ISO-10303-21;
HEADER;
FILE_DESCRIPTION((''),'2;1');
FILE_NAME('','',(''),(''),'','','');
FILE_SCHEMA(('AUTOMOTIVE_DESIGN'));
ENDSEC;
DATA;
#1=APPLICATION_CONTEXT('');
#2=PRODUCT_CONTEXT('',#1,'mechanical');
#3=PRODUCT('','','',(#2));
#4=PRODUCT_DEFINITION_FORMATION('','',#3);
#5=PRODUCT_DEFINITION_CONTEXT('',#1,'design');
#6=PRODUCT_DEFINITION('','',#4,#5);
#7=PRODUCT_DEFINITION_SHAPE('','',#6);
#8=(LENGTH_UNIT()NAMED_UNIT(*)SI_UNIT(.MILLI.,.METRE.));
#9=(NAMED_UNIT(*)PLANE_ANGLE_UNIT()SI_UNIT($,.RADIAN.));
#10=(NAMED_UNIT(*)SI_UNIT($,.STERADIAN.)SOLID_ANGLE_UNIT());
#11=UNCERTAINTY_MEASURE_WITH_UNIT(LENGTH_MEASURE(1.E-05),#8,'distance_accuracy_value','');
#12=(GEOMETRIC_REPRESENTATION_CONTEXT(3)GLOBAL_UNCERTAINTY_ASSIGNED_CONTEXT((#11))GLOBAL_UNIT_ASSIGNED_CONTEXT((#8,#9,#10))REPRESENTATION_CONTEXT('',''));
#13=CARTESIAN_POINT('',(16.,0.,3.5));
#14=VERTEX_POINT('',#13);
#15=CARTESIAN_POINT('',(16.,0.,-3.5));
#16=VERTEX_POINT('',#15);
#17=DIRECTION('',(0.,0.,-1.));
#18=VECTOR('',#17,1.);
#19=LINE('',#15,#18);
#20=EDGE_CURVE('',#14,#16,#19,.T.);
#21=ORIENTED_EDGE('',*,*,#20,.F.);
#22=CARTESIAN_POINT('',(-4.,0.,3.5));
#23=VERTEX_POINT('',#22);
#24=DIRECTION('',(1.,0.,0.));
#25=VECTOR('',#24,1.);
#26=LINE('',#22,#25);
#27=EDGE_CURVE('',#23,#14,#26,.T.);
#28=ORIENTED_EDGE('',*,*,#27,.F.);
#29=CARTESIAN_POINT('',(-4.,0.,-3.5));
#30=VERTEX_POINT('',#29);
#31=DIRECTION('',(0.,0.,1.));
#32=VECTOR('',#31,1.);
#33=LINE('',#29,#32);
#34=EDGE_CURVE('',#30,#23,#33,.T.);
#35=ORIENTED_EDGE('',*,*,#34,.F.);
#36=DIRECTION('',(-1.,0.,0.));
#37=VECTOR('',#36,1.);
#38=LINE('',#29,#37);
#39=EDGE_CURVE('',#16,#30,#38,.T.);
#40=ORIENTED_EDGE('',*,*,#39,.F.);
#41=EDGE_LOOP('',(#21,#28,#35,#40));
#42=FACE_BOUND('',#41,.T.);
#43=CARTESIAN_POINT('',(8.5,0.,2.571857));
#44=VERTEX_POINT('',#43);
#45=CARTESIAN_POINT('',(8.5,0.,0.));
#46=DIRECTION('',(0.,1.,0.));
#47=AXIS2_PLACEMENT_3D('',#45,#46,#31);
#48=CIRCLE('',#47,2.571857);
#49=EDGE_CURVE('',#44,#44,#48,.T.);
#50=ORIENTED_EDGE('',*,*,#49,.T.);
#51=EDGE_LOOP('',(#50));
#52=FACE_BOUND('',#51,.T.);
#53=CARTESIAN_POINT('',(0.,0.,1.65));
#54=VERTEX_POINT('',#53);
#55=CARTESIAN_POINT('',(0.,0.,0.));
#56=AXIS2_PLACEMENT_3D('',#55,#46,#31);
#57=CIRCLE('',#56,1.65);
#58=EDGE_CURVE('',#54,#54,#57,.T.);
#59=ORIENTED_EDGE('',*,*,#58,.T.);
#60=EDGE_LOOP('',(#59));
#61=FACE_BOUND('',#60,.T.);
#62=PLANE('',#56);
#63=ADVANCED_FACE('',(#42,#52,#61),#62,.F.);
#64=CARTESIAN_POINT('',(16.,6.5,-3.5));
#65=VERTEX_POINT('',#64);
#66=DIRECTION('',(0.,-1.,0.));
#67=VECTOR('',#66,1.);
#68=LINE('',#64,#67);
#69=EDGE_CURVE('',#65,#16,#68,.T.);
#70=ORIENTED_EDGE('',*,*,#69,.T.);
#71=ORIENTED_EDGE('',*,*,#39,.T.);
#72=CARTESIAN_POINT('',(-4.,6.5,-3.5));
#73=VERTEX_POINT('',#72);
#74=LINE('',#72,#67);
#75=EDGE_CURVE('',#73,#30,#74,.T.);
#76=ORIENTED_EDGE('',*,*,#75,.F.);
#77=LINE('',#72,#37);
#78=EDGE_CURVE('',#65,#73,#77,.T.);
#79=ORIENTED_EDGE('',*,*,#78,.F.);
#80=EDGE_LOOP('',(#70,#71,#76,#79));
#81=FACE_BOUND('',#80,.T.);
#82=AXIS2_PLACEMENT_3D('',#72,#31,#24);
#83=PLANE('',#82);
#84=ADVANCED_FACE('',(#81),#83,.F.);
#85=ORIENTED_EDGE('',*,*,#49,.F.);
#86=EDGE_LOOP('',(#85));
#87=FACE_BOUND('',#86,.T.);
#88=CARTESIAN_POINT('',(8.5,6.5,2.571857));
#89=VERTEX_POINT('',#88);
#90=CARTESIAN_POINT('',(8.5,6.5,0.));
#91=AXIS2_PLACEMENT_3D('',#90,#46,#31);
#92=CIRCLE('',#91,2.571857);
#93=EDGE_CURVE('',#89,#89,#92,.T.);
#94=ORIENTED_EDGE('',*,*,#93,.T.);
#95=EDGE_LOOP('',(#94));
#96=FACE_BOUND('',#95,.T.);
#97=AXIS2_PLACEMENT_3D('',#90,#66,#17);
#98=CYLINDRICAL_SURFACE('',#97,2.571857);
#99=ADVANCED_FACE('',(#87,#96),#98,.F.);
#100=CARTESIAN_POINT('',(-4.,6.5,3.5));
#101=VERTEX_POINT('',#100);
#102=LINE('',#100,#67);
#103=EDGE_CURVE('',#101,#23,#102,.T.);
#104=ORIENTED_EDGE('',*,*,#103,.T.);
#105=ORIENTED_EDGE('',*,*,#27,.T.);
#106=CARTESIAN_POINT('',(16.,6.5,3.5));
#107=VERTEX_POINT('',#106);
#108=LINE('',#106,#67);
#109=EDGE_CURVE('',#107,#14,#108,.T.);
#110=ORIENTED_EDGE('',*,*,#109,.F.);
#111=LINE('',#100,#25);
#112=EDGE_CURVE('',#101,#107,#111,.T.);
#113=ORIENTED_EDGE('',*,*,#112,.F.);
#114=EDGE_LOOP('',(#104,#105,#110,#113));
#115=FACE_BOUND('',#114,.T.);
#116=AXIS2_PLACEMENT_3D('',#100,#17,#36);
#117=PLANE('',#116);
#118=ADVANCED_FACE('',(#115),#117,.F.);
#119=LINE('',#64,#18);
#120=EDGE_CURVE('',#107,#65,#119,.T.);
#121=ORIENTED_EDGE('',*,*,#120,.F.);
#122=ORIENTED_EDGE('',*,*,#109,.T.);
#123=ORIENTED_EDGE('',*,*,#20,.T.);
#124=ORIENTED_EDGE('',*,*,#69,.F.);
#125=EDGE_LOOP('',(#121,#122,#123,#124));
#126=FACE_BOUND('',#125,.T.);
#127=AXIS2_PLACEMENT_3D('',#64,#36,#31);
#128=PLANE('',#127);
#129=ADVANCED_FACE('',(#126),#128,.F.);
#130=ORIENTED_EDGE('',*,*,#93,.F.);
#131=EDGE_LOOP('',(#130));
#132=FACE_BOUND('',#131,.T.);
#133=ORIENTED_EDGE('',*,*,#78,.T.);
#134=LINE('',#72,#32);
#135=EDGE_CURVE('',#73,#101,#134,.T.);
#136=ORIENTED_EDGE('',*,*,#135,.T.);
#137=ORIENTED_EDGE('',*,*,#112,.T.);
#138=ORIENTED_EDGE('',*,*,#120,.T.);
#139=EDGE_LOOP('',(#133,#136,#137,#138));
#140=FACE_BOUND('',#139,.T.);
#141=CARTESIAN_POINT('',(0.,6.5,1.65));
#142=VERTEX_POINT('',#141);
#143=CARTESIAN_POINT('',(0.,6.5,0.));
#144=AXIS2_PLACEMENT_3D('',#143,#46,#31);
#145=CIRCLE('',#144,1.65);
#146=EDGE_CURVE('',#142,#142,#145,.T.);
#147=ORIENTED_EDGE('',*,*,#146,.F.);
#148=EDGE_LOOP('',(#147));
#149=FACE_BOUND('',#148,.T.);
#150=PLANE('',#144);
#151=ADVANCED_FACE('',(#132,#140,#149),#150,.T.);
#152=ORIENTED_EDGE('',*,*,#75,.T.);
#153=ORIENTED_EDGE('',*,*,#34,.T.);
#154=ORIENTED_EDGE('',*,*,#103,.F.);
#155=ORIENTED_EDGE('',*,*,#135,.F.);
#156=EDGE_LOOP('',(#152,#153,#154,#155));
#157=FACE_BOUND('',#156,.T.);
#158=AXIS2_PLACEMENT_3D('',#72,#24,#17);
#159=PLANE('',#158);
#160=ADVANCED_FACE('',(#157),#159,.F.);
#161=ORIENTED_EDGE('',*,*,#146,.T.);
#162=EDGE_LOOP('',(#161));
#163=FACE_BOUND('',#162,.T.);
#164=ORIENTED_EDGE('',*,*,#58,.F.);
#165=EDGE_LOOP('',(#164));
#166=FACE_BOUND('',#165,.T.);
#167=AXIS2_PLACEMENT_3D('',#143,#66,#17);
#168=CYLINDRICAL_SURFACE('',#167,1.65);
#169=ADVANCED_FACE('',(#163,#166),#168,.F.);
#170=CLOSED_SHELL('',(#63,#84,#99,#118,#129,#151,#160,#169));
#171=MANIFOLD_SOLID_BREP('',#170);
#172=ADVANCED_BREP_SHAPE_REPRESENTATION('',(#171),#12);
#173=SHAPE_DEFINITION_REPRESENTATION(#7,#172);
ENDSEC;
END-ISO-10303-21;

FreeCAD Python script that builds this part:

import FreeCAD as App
import Part
import Sketcher


def add_polygon(sketch, points):
    """Adds a closed chain of lines whose ends are joined by coincident constraints."""
    first, n = sketch.GeometryCount, len(points)
    for a, b in zip(points, points[1:] + points[:1]):
        sketch.addGeometry(Part.LineSegment(App.Vector(*a, 0), App.Vector(*b, 0)), False)
    for i in range(n):
        sketch.addConstraint(Sketcher.Constraint("Coincident", first + i, 2, first + (i + 1) % n, 1))

doc = App.newDocument("Part")
body = doc.addObject("PartDesign::Body", "Body")

# Sketch on XZ plane
sketch1 = doc.addObject("Sketcher::SketchObject", "Sketch")
body.addObject(sketch1)
sketch1.AttachmentSupport = (doc.XZ_Plane, [""])
sketch1.MapMode = "FlatFace"
add_polygon(sketch1, [(-4, -3.5), (-4, 3.5), (16, 3.5), (16, -3.5)])  # lines 0-3
sketch1.addGeometry(Part.Circle(App.Vector(0, 0, 0), App.Vector(0, 0, 1), 1.65), False)  # 4
sketch1.addGeometry(Part.Circle(App.Vector(8.5, 0, 0), App.Vector(0, 0, 1), 2.571857), False)  # 5
sketch1.addConstraint([
    Sketcher.Constraint("Vertical", 0),
    Sketcher.Constraint("Horizontal", 1),
    Sketcher.Constraint("Vertical", 2),
    Sketcher.Constraint("Horizontal", 3),
    Sketcher.Constraint("Coincident", 4, 3, -1, 1),
    Sketcher.Constraint("PointOnObject", 5, 3, -1),
    Sketcher.Constraint("Diameter", 4, 3.3),
    Sketcher.Constraint("DistanceX", 1, 1, 1, 2, 20.0),
    Sketcher.Constraint("DistanceY", 0, 1, 0, 2, 7.0),
    Sketcher.Constraint("DistanceX", 0, 2, -1, 1, 4.0),
    Sketcher.Constraint("DistanceX", -1, 1, 5, 3, 8.5),
    Sketcher.Constraint("DistanceY", -1, 1, 0, 2, 3.5),
    Sketcher.Constraint("Diameter", 5, 5.143715),
])
pad1 = doc.addObject("PartDesign::Pad", "Pad")
body.addObject(pad1)
pad1.Profile = sketch1
pad1.Length = 6.5
pad1.Reversed = True

doc.recompute()
